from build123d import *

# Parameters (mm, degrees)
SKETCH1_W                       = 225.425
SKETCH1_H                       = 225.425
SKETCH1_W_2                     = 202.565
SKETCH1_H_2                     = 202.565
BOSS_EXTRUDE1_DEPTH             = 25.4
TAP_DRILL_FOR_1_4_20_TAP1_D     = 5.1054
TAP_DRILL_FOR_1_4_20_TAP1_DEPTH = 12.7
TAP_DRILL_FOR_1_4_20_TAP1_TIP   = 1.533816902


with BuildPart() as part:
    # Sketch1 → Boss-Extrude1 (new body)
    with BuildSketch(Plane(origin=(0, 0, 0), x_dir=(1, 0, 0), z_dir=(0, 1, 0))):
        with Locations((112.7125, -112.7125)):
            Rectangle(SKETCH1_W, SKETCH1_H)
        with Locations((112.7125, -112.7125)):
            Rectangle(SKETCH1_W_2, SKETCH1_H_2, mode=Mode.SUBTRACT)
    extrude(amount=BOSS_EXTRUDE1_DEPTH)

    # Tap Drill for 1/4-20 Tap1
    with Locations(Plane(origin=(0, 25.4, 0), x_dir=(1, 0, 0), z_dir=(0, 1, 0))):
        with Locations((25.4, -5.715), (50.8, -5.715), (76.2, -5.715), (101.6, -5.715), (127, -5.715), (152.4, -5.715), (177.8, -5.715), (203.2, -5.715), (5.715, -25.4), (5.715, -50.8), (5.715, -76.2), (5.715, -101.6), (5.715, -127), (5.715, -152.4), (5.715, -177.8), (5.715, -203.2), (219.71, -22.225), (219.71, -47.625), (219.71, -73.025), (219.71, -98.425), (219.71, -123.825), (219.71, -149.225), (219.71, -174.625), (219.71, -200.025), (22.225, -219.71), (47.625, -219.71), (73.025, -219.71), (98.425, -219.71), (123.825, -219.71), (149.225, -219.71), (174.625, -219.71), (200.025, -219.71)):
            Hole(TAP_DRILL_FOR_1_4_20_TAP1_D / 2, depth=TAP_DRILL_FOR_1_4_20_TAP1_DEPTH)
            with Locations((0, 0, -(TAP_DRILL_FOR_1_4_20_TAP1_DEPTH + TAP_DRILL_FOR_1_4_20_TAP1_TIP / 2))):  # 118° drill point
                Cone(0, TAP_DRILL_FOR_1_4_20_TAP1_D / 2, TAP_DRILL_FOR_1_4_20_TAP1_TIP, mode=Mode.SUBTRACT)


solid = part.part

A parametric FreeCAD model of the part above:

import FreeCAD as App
import Part
import Sketcher
from FreeCAD import Vector
Q = App.Units.Quantity

doc = App.newDocument("Part")
params = doc.addObject("Spreadsheet::Sheet", "Params")
for row, (alias, value) in enumerate([
    ("sketch1_width", "8.875 in"),
    ("sketch1_width2", "7.975 in"),
    ("pad1_length", "1 in"),
    ("sketch2_diameter", "0.201 in"),
    ("hole_diameter", "0.201 in"),
    ("hole_depth", "0.5 in"),
], start=1):
    params.set(f"A{row}", alias)
    params.set(f"B{row}", "=" + value)
    params.setAlias(f"B{row}", alias)

body = doc.addObject("PartDesign::Body", "Body")

# Sketch on XZ plane
sketch1 = body.newObject("Sketcher::SketchObject", "Sketch")
sketch1.AttachmentSupport = (doc.getObject("XZ_Plane"), [""])
sketch1.MapMode = "FlatFace"
sketch1.addGeometry(Part.LineSegment(Vector(0, 0, 0), Vector(0, 225.425, 0)), False)
sketch1.addGeometry(Part.LineSegment(Vector(0, 225.425, 0), Vector(225.425, 225.425, 0)), False)
sketch1.addGeometry(Part.LineSegment(Vector(225.425, 225.425, 0), Vector(225.425, 0, 0)), False)
sketch1.addGeometry(Part.LineSegment(Vector(225.425, 0, 0), Vector(0, 0, 0)), False)
sketch1.addGeometry(Part.LineSegment(Vector(213.995, 213.995, 0), Vector(11.43, 213.995, 0)), False)
sketch1.addGeometry(Part.LineSegment(Vector(11.43, 213.995, 0), Vector(11.43, 11.43, 0)), False)
sketch1.addGeometry(Part.LineSegment(Vector(11.43, 11.43, 0), Vector(213.995, 11.43, 0)), False)
sketch1.addGeometry(Part.LineSegment(Vector(213.995, 11.43, 0), Vector(213.995, 213.995, 0)), False)
sketch1.addConstraint(Sketcher.Constraint("Coincident", 0, 2, 1, 1))
sketch1.addConstraint(Sketcher.Constraint("Coincident", 1, 2, 2, 1))
sketch1.addConstraint(Sketcher.Constraint("Coincident", 2, 2, 3, 1))
sketch1.addConstraint(Sketcher.Constraint("Coincident", 3, 2, 0, 1))
sketch1.addConstraint(Sketcher.Constraint("Coincident", 4, 2, 5, 1))
sketch1.addConstraint(Sketcher.Constraint("Coincident", 5, 2, 6, 1))
sketch1.addConstraint(Sketcher.Constraint("Coincident", 6, 2, 7, 1))
sketch1.addConstraint(Sketcher.Constraint("Coincident", 7, 2, 4, 1))
sketch1.addConstraint(Sketcher.Constraint("Vertical", 0))
sketch1.addConstraint(Sketcher.Constraint("Horizontal", 1))
sketch1.addConstraint(Sketcher.Constraint("Vertical", 2))
sketch1.addConstraint(Sketcher.Constraint("Horizontal", 3))
sketch1.addConstraint(Sketcher.Constraint("Horizontal", 4))
sketch1.addConstraint(Sketcher.Constraint("Vertical", 5))
sketch1.addConstraint(Sketcher.Constraint("Horizontal", 6))
sketch1.addConstraint(Sketcher.Constraint("Vertical", 7))
sketch1.addConstraint(Sketcher.Constraint("Coincident", 3, 2, -1, 1))
sketch1.addConstraint(Sketcher.Constraint("Equal", 3, 0))
sketch1.addConstraint(Sketcher.Constraint("Equal", 6, 5))
sketch1.addConstraint(Sketcher.Constraint("DistanceX", 1, 1, 1, 2, Q("8.875 in")))
sketch1.addConstraint(Sketcher.Constraint("DistanceX", 4, 2, 4, 1, Q("7.975 in")))
sketch1.addConstraint(Sketcher.Constraint("DistanceX", -1, 1, 4, 2, Q("0.45 in")))
sketch1.addConstraint(Sketcher.Constraint("DistanceY", -1, 1, 5, 2, Q("0.45 in")))
sketch1.setExpression("Constraints[19]", "Params.sketch1_width")
sketch1.setExpression("Constraints[20]", "Params.sketch1_width2")
pad1 = body.newObject("PartDesign::Pad", "Pad")
pad1.Profile = sketch1
pad1.setExpression("Length", "Params.pad1_length")
pad1.Reversed = True

# Sketch on XZ plane
sketch2 = body.newObject("Sketcher::SketchObject", "Sketch001")
sketch2.AttachmentSupport = (doc.getObject("XZ_Plane"), [""])
sketch2.MapMode = "FlatFace"
sketch2.AttachmentOffset = App.Placement(Vector(0, 0, -1 * 25.4), App.Rotation())
sketch2.addGeometry(Part.Circle(Vector(25.4, 5.715, 0), Vector(0, 0, 1), 2.5527), False)
sketch2.addGeometry(Part.Circle(Vector(50.8, 5.715, 0), Vector(0, 0, 1), 2.5527), False)
sketch2.addGeometry(Part.Circle(Vector(76.2, 5.715, 0), Vector(0, 0, 1), 2.5527), False)
sketch2.addGeometry(Part.Circle(Vector(101.6, 5.715, 0), Vector(0, 0, 1), 2.5527), False)
sketch2.addGeometry(Part.Circle(Vector(127, 5.715, 0), Vector(0, 0, 1), 2.5527), False)
sketch2.addGeometry(Part.Circle(Vector(152.4, 5.715, 0), Vector(0, 0, 1), 2.5527), False)
sketch2.addGeometry(Part.Circle(Vector(177.8, 5.715, 0), Vector(0, 0, 1), 2.5527), False)
sketch2.addGeometry(Part.Circle(Vector(203.2, 5.715, 0), Vector(0, 0, 1), 2.5527), False)
sketch2.addGeometry(Part.Circle(Vector(5.715, 25.4, 0), Vector(0, 0, 1), 2.5527), False)
sketch2.addGeometry(Part.Circle(Vector(5.715, 50.8, 0), Vector(0, 0, 1), 2.5527), False)
sketch2.addGeometry(Part.Circle(Vector(5.715, 76.2, 0), Vector(0, 0, 1), 2.5527), False)
sketch2.addGeometry(Part.Circle(Vector(5.715, 101.6, 0), Vector(0, 0, 1), 2.5527), False)
sketch2.addGeometry(Part.Circle(Vector(5.715, 127, 0), Vector(0, 0, 1), 2.5527), False)
sketch2.addGeometry(Part.Circle(Vector(5.715, 152.4, 0), Vector(0, 0, 1), 2.5527), False)
sketch2.addGeometry(Part.Circle(Vector(5.715, 177.8, 0), Vector(0, 0, 1), 2.5527), False)
sketch2.addGeometry(Part.Circle(Vector(5.715, 203.2, 0), Vector(0, 0, 1), 2.5527), False)
sketch2.addGeometry(Part.Circle(Vector(219.71, 22.225, 0), Vector(0, 0, 1), 2.5527), False)
sketch2.addGeometry(Part.Circle(Vector(219.71, 47.625, 0), Vector(0, 0, 1), 2.5527), False)
sketch2.addGeometry(Part.Circle(Vector(219.71, 73.025, 0), Vector(0, 0, 1), 2.5527), False)
sketch2.addGeometry(Part.Circle(Vector(219.71, 98.425, 0), Vector(0, 0, 1), 2.5527), False)
sketch2.addGeometry(Part.Circle(Vector(219.71, 123.825, 0), Vector(0, 0, 1), 2.5527), False)
sketch2.addGeometry(Part.Circle(Vector(219.71, 149.225, 0), Vector(0, 0, 1), 2.5527), False)
sketch2.addGeometry(Part.Circle(Vector(219.71, 174.625, 0), Vector(0, 0, 1), 2.5527), False)
sketch2.addGeometry(Part.Circle(Vector(219.71, 200.025, 0), Vector(0, 0, 1), 2.5527), False)
sketch2.addGeometry(Part.Circle(Vector(22.225, 219.71, 0), Vector(0, 0, 1), 2.5527), False)
sketch2.addGeometry(Part.Circle(Vector(47.625, 219.71, 0), Vector(0, 0, 1), 2.5527), False)
sketch2.addGeometry(Part.Circle(Vector(73.025, 219.71, 0), Vector(0, 0, 1), 2.5527), False)
sketch2.addGeometry(Part.Circle(Vector(98.425, 219.71, 0), Vector(0, 0, 1), 2.5527), False)
sketch2.addGeometry(Part.Circle(Vector(123.825, 219.71, 0), Vector(0, 0, 1), 2.5527), False)
sketch2.addGeometry(Part.Circle(Vector(149.225, 219.71, 0), Vector(0, 0, 1), 2.5527), False)
sketch2.addGeometry(Part.Circle(Vector(174.625, 219.71, 0), Vector(0, 0, 1), 2.5527), False)
sketch2.addGeometry(Part.Circle(Vector(200.025, 219.71, 0), Vector(0, 0, 1), 2.5527), False)
sketch2.addConstraint(Sketcher.Constraint("Equal", 0, 1))
sketch2.addConstraint(Sketcher.Constraint("Equal", 1, 2))
sketch2.addConstraint(Sketcher.Constraint("Equal", 2, 3))
sketch2.addConstraint(Sketcher.Constraint("Equal", 3, 4))
sketch2.addConstraint(Sketcher.Constraint("Equal", 4, 5))
sketch2.addConstraint(Sketcher.Constraint("Equal", 5, 6))
sketch2.addConstraint(Sketcher.Constraint("Equal", 6, 7))
sketch2.addConstraint(Sketcher.Constraint("Equal", 7, 8))
sketch2.addConstraint(Sketcher.Constraint("Equal", 8, 9))
sketch2.addConstraint(Sketcher.Constraint("Equal", 9, 10))
sketch2.addConstraint(Sketcher.Constraint("Equal", 10, 11))
sketch2.addConstraint(Sketcher.Constraint("Equal", 11, 12))
sketch2.addConstraint(Sketcher.Constraint("Equal", 12, 13))
sketch2.addConstraint(Sketcher.Constraint("Equal", 13, 14))
sketch2.addConstraint(Sketcher.Constraint("Equal", 14, 15))
sketch2.addConstraint(Sketcher.Constraint("Equal", 15, 16))
sketch2.addConstraint(Sketcher.Constraint("Equal", 16, 17))
sketch2.addConstraint(Sketcher.Constraint("Equal", 17, 18))
sketch2.addConstraint(Sketcher.Constraint("Equal", 18, 19))
sketch2.addConstraint(Sketcher.Constraint("Equal", 19, 20))
sketch2.addConstraint(Sketcher.Constraint("Equal", 20, 21))
sketch2.addConstraint(Sketcher.Constraint("Equal", 21, 22))
sketch2.addConstraint(Sketcher.Constraint("Equal", 22, 23))
sketch2.addConstraint(Sketcher.Constraint("Equal", 23, 24))
sketch2.addConstraint(Sketcher.Constraint("Equal", 24, 25))
sketch2.addConstraint(Sketcher.Constraint("Equal", 25, 26))
sketch2.addConstraint(Sketcher.Constraint("Equal", 26, 27))
sketch2.addConstraint(Sketcher.Constraint("Equal", 27, 28))
sketch2.addConstraint(Sketcher.Constraint("Equal", 28, 29))
sketch2.addConstraint(Sketcher.Constraint("Equal", 29, 30))
sketch2.addConstraint(Sketcher.Constraint("Equal", 30, 31))
sketch2.addConstraint(Sketcher.Constraint("Horizontal", 0, 3, 1, 3))
sketch2.addConstraint(Sketcher.Constraint("Horizontal", 1, 3, 2, 3))
sketch2.addConstraint(Sketcher.Constraint("Horizontal", 2, 3, 3, 3))
sketch2.addConstraint(Sketcher.Constraint("Horizontal", 3, 3, 4, 3))
sketch2.addConstraint(Sketcher.Constraint("Horizontal", 4, 3, 5, 3))
sketch2.addConstraint(Sketcher.Constraint("Horizontal", 5, 3, 6, 3))
sketch2.addConstraint(Sketcher.Constraint("Horizontal", 6, 3, 7, 3))
sketch2.addConstraint(Sketcher.Constraint("Horizontal", 24, 3, 25, 3))
sketch2.addConstraint(Sketcher.Constraint("Horizontal", 25, 3, 26, 3))
sketch2.addConstraint(Sketcher.Constraint("Horizontal", 26, 3, 27, 3))
sketch2.addConstraint(Sketcher.Constraint("Horizontal", 27, 3, 28, 3))
sketch2.addConstraint(Sketcher.Constraint("Horizontal", 28, 3, 29, 3))
sketch2.addConstraint(Sketcher.Constraint("Horizontal", 29, 3, 30, 3))
sketch2.addConstraint(Sketcher.Constraint("Horizontal", 30, 3, 31, 3))
sketch2.addConstraint(Sketcher.Constraint("Vertical", 8, 3, 9, 3))
sketch2.addConstraint(Sketcher.Constraint("Vertical", 9, 3, 10, 3))
sketch2.addConstraint(Sketcher.Constraint("Vertical", 10, 3, 11, 3))
sketch2.addConstraint(Sketcher.Constraint("Vertical", 11, 3, 12, 3))
sketch2.addConstraint(Sketcher.Constraint("Vertical", 12, 3, 13, 3))
sketch2.addConstraint(Sketcher.Constraint("Vertical", 13, 3, 14, 3))
sketch2.addConstraint(Sketcher.Constraint("Vertical", 14, 3, 15, 3))
sketch2.addConstraint(Sketcher.Constraint("Vertical", 16, 3, 17, 3))
sketch2.addConstraint(Sketcher.Constraint("Vertical", 17, 3, 18, 3))
sketch2.addConstraint(Sketcher.Constraint("Vertical", 18, 3, 19, 3))
sketch2.addConstraint(Sketcher.Constraint("Vertical", 19, 3, 20, 3))
sketch2.addConstraint(Sketcher.Constraint("Vertical", 20, 3, 21, 3))
sketch2.addConstraint(Sketcher.Constraint("Vertical", 21, 3, 22, 3))
sketch2.addConstraint(Sketcher.Constraint("Vertical", 22, 3, 23, 3))
sketch2.addConstraint(Sketcher.Constraint("Diameter", 0, Q("0.201 in")))
sketch2.addConstraint(Sketcher.Constraint("DistanceX", -1, 1, 0, 3, Q("1 in")))
sketch2.addConstraint(Sketcher.Constraint("DistanceX", -1, 1, 1, 3, Q("2 in")))
sketch2.addConstraint(Sketcher.Constraint("DistanceX", -1, 1, 2, 3, Q("3 in")))
sketch2.addConstraint(Sketcher.Constraint("DistanceX", -1, 1, 3, 3, Q("4 in")))
sketch2.addConstraint(Sketcher.Constraint("DistanceX", -1, 1, 4, 3, Q("5 in")))
sketch2.addConstraint(Sketcher.Constraint("DistanceX", -1, 1, 5, 3, Q("6 in")))
sketch2.addConstraint(Sketcher.Constraint("DistanceX", -1, 1, 6, 3, Q("7 in")))
sketch2.addConstraint(Sketcher.Constraint("DistanceX", -1, 1, 7, 3, Q("8 in")))
sketch2.addConstraint(Sketcher.Constraint("DistanceY", -1, 1, 8, 3, Q("1 in")))
sketch2.addConstraint(Sketcher.Constraint("DistanceY", -1, 1, 9, 3, Q("2 in")))
sketch2.addConstraint(Sketcher.Constraint("DistanceY", -1, 1, 10, 3, Q("3 in")))
sketch2.addConstraint(Sketcher.Constraint("DistanceY", -1, 1, 11, 3, Q("4 in")))
sketch2.addConstraint(Sketcher.Constraint("DistanceY", -1, 1, 12, 3, Q("5 in")))
sketch2.addConstraint(Sketcher.Constraint("DistanceY", -1, 1, 13, 3, Q("6 in")))
sketch2.addConstraint(Sketcher.Constraint("DistanceY", -1, 1, 14, 3, Q("7 in")))
sketch2.addConstraint(Sketcher.Constraint("DistanceY", -1, 1, 15, 3, Q("8 in")))
sketch2.addConstraint(Sketcher.Constraint("DistanceY", 16, 3, 17, 3, Q("1 in")))
sketch2.addConstraint(Sketcher.Constraint("DistanceY", 17, 3, 18, 3, Q("1 in")))
sketch2.addConstraint(Sketcher.Constraint("DistanceY", 18, 3, 19, 3, Q("1 in")))
sketch2.addConstraint(Sketcher.Constraint("DistanceY", 19, 3, 20, 3, Q("1 in")))
sketch2.addConstraint(Sketcher.Constraint("DistanceY", 20, 3, 21, 3, Q("1 in")))
sketch2.addConstraint(Sketcher.Constraint("DistanceY", 21, 3, 22, 3, Q("1 in")))
sketch2.addConstraint(Sketcher.Constraint("DistanceY", 22, 3, 23, 3, Q("1 in")))
sketch2.addConstraint(Sketcher.Constraint("DistanceX", 24, 3, 25, 3, Q("1 in")))
sketch2.addConstraint(Sketcher.Constraint("DistanceX", 25, 3, 26, 3, Q("1 in")))
sketch2.addConstraint(Sketcher.Constraint("DistanceX", 26, 3, 27, 3, Q("1 in")))
sketch2.addConstraint(Sketcher.Constraint("DistanceX", 27, 3, 28, 3, Q("1 in")))
sketch2.addConstraint(Sketcher.Constraint("DistanceX", 28, 3, 29, 3, Q("1 in")))
sketch2.addConstraint(Sketcher.Constraint("DistanceX", 29, 3, 30, 3, Q("1 in")))
sketch2.addConstraint(Sketcher.Constraint("DistanceX", 30, 3, 31, 3, Q("1 in")))
sketch2.addConstraint(Sketcher.Constraint("DistanceX", -1, 1, 16, 3, Q("8.65 in")))
sketch2.addConstraint(Sketcher.Constraint("DistanceY", -1, 1, 24, 3, Q("8.65 in")))
sketch2.addConstraint(Sketcher.Constraint("DistanceY", 7, 3, 16, 3, Q("0.65 in")))
sketch2.addConstraint(Sketcher.Constraint("DistanceX", 15, 3, 24, 3, Q("0.65 in")))
sketch2.addConstraint(Sketcher.Constraint("DistanceY", -1, 1, 0, 3, Q("0.225 in")))
sketch2.addConstraint(Sketcher.Constraint("DistanceX", -1, 1, 8, 3, Q("0.225 in")))
sketch2.setExpression("Constraints[59]", "Params.sketch2_diameter")
doc.recompute()
hole = body.newObject("PartDesign::Hole", "Hole")
hole.Profile = sketch2
hole.ThreadType = "None"
hole.setExpression("Diameter", "Params.hole_diameter")
hole.DepthType = "Dimension"
hole.setExpression("Depth", "Params.hole_depth")
hole.DrillPoint = "Angled"
hole.DrillPointAngle = 118
hole.Reversed = True

doc.recompute()
